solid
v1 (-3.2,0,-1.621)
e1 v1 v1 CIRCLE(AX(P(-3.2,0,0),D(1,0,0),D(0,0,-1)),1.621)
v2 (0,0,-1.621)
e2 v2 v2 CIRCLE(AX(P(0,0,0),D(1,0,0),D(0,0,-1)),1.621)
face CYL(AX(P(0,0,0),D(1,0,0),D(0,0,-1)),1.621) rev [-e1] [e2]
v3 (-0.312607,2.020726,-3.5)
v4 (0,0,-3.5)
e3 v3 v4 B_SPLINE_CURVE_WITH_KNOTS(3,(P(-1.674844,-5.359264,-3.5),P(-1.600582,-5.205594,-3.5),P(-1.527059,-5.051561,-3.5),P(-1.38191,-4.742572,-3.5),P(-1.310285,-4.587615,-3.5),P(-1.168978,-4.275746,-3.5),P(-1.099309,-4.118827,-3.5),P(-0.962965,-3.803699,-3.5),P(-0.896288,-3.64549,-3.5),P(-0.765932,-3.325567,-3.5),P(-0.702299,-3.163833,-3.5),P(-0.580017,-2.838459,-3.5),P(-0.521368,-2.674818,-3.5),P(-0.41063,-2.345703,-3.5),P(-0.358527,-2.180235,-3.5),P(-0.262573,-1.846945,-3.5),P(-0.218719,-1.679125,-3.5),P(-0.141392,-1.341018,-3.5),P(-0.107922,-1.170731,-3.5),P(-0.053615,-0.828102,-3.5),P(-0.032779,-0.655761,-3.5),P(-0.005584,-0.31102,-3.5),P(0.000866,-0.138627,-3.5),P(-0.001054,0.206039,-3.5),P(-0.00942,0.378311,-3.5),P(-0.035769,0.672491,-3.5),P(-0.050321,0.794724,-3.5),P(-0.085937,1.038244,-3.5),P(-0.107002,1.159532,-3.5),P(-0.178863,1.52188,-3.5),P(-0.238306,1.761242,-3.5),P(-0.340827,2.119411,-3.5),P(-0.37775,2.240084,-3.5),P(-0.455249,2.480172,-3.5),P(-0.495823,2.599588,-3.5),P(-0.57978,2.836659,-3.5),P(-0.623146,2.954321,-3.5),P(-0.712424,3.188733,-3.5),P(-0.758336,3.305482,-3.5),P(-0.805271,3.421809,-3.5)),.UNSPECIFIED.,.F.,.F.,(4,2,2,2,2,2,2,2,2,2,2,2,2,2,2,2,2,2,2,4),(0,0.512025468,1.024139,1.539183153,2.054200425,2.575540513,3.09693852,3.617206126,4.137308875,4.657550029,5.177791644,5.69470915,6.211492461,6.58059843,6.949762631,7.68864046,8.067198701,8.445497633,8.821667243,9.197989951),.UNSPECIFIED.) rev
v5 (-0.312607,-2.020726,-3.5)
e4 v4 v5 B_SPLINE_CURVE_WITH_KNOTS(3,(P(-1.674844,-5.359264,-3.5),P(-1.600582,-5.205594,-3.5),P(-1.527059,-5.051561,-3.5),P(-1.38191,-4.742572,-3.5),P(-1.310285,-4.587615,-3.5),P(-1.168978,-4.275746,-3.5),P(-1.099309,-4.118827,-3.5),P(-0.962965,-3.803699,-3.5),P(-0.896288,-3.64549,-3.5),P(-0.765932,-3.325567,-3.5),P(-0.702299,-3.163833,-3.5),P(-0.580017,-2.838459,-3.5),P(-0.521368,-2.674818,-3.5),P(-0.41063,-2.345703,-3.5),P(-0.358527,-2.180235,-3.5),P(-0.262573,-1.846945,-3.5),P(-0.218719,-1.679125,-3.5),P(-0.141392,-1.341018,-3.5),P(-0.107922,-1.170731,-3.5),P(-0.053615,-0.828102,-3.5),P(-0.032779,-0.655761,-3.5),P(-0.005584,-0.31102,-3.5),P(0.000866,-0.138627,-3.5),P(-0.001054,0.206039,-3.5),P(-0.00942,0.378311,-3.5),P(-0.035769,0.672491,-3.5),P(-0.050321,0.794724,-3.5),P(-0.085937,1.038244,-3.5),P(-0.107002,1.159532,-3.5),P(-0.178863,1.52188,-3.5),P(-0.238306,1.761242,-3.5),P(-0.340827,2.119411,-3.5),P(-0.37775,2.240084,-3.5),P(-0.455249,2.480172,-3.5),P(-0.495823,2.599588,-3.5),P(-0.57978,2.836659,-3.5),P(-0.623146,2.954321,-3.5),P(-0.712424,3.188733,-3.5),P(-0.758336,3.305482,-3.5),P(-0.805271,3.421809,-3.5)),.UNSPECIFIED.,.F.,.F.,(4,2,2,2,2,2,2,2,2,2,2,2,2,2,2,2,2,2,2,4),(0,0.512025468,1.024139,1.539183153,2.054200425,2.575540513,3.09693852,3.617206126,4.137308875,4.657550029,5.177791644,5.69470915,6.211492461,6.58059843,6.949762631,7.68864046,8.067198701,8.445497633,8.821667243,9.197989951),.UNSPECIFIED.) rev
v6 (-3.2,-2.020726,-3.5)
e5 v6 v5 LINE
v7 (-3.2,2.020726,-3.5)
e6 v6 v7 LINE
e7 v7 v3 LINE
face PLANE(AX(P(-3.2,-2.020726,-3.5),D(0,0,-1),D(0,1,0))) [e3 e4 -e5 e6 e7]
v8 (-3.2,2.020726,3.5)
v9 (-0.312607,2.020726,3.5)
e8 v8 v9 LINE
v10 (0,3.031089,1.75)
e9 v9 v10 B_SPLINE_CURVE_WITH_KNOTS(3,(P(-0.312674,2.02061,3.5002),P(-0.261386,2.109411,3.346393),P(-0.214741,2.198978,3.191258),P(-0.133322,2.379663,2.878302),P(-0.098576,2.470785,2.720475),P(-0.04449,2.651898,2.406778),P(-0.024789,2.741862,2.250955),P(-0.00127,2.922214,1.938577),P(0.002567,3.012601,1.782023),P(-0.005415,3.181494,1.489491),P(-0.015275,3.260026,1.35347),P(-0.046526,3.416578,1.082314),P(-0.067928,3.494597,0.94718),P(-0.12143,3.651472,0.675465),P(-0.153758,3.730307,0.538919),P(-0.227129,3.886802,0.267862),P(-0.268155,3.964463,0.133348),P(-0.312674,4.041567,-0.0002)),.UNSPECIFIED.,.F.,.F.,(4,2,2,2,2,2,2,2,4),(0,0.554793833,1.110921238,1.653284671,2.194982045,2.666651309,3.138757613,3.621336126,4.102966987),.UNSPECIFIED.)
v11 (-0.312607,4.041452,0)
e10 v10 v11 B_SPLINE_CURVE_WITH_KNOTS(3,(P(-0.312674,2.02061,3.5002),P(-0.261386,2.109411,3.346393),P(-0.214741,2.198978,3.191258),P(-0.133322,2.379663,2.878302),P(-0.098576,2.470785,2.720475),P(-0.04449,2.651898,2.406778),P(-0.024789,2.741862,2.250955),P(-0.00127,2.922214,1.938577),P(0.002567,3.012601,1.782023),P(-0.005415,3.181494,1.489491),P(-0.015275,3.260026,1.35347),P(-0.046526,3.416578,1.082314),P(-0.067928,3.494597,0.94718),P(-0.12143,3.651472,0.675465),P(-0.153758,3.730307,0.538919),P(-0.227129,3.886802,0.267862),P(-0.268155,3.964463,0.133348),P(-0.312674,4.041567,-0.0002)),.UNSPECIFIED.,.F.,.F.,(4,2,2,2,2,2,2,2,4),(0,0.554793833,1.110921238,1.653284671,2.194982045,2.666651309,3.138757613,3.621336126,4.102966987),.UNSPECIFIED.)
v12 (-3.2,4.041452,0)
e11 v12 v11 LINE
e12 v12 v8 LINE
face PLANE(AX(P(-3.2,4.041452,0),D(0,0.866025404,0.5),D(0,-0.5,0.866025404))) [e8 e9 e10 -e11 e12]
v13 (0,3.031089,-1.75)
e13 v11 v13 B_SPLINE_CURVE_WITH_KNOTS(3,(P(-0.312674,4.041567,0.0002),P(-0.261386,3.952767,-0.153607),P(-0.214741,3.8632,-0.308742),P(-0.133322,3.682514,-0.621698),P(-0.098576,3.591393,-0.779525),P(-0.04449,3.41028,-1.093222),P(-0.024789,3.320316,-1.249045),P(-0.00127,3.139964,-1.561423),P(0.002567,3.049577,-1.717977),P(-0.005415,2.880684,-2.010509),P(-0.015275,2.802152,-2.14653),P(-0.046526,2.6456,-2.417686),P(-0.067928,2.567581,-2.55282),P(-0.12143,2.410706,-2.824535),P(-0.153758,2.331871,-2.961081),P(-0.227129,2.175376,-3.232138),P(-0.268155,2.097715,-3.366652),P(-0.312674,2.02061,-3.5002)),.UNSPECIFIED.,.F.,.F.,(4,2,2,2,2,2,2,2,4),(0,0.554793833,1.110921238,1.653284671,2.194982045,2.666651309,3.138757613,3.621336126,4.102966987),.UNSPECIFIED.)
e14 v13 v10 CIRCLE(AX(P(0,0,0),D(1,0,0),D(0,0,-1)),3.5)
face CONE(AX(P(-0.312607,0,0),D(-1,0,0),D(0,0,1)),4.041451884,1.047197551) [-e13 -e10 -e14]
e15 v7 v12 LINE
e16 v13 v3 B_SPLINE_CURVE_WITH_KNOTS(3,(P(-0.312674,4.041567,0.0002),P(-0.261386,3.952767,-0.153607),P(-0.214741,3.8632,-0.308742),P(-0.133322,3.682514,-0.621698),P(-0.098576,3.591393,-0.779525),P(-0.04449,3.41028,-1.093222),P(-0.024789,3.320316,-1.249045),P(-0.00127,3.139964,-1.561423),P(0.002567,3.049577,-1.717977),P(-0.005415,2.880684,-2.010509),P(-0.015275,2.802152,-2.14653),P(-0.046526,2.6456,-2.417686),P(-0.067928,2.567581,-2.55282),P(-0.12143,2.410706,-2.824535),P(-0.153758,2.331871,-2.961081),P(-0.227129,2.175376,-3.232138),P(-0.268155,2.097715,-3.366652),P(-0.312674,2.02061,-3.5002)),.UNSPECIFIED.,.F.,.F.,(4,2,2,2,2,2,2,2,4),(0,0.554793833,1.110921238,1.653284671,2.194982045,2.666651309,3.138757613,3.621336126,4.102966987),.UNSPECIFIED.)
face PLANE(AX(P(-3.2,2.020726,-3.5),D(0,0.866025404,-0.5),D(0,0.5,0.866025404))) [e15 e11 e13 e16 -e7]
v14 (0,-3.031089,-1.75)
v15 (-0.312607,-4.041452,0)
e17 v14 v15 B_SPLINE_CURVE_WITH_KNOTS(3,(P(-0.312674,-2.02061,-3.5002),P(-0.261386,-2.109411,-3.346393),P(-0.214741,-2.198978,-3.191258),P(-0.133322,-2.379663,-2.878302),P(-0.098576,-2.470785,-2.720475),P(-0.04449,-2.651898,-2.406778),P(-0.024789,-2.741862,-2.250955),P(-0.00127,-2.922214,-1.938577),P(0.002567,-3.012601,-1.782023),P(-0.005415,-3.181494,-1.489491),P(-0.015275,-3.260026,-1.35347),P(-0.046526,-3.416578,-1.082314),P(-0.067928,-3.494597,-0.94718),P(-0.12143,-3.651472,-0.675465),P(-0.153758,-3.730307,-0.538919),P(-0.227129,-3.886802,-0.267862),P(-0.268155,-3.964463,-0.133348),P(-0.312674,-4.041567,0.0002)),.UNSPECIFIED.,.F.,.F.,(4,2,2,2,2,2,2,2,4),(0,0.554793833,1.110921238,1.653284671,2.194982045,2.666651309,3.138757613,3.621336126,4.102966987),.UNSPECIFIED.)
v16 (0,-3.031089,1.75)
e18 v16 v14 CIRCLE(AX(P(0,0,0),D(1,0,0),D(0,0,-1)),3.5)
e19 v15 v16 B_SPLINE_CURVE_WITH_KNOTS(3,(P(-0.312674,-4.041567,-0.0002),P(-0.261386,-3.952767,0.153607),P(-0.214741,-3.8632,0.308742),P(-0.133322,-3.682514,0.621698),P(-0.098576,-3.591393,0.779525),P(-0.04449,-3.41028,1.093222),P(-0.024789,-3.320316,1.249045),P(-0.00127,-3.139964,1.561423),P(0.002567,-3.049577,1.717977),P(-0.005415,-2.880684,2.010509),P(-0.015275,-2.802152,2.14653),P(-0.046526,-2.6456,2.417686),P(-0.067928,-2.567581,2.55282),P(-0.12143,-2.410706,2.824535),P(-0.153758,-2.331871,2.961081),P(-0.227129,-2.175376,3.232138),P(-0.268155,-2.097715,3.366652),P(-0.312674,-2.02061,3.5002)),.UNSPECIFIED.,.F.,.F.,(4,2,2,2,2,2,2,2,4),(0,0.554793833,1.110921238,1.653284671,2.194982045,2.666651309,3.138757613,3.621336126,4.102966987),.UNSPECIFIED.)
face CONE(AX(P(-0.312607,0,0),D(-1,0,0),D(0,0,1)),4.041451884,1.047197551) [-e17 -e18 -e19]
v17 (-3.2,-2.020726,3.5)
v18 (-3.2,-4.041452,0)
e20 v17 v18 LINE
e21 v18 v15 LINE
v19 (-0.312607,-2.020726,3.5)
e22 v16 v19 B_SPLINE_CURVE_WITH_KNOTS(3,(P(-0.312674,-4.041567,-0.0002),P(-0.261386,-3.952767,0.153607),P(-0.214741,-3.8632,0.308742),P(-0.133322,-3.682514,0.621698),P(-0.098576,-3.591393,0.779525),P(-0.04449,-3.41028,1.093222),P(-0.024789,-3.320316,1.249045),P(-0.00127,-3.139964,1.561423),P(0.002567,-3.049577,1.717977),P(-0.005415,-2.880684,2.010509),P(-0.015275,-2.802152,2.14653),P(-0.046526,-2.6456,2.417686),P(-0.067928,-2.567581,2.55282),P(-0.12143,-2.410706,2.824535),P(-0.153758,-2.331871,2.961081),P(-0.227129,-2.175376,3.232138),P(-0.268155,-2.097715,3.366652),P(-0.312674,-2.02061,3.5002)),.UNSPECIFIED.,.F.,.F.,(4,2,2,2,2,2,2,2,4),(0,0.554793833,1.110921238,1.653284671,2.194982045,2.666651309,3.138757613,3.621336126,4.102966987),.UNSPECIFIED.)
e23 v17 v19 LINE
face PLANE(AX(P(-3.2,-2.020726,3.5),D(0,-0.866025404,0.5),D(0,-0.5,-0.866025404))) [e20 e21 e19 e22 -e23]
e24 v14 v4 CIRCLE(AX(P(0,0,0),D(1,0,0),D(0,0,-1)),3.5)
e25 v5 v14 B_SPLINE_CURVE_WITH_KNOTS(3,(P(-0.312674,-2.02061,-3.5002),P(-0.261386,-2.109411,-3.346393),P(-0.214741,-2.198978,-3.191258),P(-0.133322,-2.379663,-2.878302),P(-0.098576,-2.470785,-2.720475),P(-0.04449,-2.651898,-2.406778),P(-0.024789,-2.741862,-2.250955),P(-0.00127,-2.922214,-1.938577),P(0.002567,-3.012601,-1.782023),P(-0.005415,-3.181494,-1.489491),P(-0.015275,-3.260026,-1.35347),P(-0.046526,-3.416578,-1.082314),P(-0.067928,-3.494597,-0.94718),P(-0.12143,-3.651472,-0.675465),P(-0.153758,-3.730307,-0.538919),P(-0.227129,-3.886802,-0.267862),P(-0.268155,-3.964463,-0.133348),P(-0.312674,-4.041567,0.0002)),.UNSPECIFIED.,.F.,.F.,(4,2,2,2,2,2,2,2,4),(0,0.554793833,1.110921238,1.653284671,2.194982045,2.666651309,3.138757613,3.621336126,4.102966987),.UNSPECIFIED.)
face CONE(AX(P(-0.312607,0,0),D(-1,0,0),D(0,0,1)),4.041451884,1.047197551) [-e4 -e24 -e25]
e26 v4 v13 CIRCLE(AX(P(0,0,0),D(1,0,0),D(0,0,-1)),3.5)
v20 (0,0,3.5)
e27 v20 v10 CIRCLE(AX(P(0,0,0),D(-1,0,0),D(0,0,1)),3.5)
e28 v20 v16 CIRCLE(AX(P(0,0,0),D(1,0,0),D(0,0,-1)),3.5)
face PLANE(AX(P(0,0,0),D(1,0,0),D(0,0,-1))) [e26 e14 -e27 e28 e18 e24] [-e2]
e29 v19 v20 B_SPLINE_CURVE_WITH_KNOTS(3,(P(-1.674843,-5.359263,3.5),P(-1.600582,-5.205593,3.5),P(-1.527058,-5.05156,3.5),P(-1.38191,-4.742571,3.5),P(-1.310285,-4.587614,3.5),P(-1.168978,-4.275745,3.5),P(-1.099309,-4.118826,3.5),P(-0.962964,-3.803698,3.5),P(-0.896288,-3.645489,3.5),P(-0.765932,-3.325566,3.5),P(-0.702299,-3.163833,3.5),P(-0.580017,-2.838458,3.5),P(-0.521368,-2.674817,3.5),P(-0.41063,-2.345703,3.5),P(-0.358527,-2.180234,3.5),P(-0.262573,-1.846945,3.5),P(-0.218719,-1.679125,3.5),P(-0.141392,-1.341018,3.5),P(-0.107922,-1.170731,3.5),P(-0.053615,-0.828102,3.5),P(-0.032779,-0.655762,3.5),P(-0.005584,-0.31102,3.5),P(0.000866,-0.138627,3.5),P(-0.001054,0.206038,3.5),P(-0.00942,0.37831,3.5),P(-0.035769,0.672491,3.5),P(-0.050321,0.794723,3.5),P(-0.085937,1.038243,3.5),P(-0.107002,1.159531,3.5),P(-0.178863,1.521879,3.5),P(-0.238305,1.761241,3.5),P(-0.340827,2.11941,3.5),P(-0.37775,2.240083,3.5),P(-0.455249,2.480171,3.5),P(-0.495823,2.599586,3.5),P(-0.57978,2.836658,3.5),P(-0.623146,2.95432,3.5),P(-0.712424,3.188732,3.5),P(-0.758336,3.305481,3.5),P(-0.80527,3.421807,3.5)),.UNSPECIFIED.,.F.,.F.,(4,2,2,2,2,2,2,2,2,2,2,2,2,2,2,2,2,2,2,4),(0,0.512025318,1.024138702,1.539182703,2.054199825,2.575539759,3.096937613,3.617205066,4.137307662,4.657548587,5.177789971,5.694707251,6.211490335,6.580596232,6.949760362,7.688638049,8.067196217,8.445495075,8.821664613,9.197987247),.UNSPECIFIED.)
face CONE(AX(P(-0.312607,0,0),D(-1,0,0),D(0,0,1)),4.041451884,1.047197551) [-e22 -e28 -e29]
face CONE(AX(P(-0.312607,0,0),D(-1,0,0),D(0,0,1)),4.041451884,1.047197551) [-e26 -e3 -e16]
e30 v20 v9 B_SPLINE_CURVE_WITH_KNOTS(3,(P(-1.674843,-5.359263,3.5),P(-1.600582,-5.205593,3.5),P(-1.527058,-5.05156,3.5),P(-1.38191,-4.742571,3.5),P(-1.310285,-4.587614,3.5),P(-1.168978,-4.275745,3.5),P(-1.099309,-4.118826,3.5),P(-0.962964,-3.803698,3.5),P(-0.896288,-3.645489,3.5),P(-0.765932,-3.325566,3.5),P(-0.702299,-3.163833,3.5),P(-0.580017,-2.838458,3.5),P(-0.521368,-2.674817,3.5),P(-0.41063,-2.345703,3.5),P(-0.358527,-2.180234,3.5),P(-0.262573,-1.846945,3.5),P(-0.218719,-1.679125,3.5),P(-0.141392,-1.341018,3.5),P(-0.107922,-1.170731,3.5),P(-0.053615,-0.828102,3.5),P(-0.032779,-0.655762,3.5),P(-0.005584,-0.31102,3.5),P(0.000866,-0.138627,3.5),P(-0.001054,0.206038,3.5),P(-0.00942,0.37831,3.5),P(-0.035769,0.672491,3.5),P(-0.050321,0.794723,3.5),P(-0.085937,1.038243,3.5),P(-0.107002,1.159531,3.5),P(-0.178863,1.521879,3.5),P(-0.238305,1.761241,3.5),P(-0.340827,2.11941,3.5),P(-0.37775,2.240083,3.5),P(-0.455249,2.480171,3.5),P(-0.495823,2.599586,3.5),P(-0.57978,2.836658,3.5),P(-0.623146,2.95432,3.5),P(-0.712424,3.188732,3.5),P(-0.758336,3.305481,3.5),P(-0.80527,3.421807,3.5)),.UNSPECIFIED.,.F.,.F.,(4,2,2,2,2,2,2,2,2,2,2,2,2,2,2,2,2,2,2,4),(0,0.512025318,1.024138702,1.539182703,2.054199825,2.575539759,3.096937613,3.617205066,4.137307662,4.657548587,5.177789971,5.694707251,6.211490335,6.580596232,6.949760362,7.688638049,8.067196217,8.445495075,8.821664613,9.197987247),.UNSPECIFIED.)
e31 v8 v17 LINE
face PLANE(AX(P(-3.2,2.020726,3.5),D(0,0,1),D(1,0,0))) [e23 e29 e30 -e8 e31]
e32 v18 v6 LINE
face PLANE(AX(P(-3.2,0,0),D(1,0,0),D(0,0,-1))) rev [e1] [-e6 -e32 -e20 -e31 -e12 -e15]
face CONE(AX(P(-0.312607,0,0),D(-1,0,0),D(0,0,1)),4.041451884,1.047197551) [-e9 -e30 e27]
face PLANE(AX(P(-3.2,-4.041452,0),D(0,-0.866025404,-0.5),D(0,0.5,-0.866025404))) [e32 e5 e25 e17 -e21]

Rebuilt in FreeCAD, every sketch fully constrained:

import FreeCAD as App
import Part
import Sketcher
from FreeCAD import Vector
Q = App.Units.Quantity


def add_polygon(sketch, points):
    """Adds a closed chain of lines whose ends are joined by coincident constraints."""
    first, n = sketch.GeometryCount, len(points)
    for a, b in zip(points, points[1:] + points[:1]):
        sketch.addGeometry(Part.LineSegment(App.Vector(*a, 0), App.Vector(*b, 0)), False)
    for i in range(n):
        sketch.addConstraint(Sketcher.Constraint("Coincident", first + i, 2, first + (i + 1) % n, 1))

doc = App.newDocument("Part")
body = doc.addObject("PartDesign::Body", "Body")

sketch1 = body.newObject("Sketcher::SketchObject", "Sketch")
sketch1.AttachmentSupport = (doc.getObject("YZ_Plane"), [""])
sketch1.MapMode = "FlatFace"
add_polygon(sketch1, [(4, 0), (2, 3.5), (-2, 3.5), (-4, 0), (-2, -3.5), (2, -3.5)])
sketch1.addConstraint([
    Sketcher.Constraint("Horizontal", 1),
    Sketcher.Constraint("Horizontal", 4),
    Sketcher.Constraint("Symmetric", 0, 2, 3, 2, -1, 1),
    Sketcher.Constraint("Symmetric", 2, 2, 5, 2, -1, 1),
    Sketcher.Constraint("PointOnObject", 2, 2, -1),
    Sketcher.Constraint("Parallel", 2, 5),
    Sketcher.Constraint("Vertical", 1, 2, 3, 2),
    Sketcher.Constraint("Angle", 0, Q("120 deg")),
    Sketcher.Constraint("DistanceY", 3, 2, 1, 2, Q("7 mm")),
    Sketcher.Constraint("DistanceX", 1, 2, 1, 1, Q("4.041452 mm")),
])
pad1 = body.newObject("PartDesign::Pad", "Pad")
pad1.Profile = sketch1
pad1.Length = 3.2
pad1.Reversed = True

sketch2 = body.newObject("Sketcher::SketchObject", "Sketch001")
sketch2.AttachmentSupport = (doc.getObject("XY_Plane"), [""])
sketch2.MapMode = "FlatFace"
add_polygon(sketch2, [(-0.31, 4.04), (0, 3.5), (0, 4.04)])
sketch2.addConstraint([
    Sketcher.Constraint("Vertical", 1),
    Sketcher.Constraint("Horizontal", 2),
    Sketcher.Constraint("PointOnObject", 0, 2, -2),
    Sketcher.Constraint("Angle", 0, Q("-60 deg")),
    Sketcher.Constraint("DistanceY", -1, 1, 0, 2, Q("3.5 mm")),
    Sketcher.Constraint("DistanceY", 1, 1, 1, 2, Q("0.541452 mm")),
])
groove = body.newObject("PartDesign::Groove", "Groove")
groove.Profile = sketch2
groove.ReferenceAxis = (sketch2, ["H_Axis"])
groove.Angle = 360

sketch3 = body.newObject("Sketcher::SketchObject", "Sketch002")
sketch3.AttachmentSupport = (doc.getObject("YZ_Plane"), [""])
sketch3.MapMode = "FlatFace"
sketch3.addGeometry(Part.Circle(Vector(0, 0, 0), Vector(0, 0, 1), 1.6), False)
sketch3.addConstraint([
    Sketcher.Constraint("Coincident", 0, 3, -1, 1),
    Sketcher.Constraint("Diameter", 0, Q("3.242 mm")),
])
doc.recompute()
hole = body.newObject("PartDesign::Hole", "Hole")
hole.Profile = sketch3
hole.ThreadType = "None"
hole.Diameter = 3.242
hole.DepthType = "ThroughAll"

doc.recompute()
